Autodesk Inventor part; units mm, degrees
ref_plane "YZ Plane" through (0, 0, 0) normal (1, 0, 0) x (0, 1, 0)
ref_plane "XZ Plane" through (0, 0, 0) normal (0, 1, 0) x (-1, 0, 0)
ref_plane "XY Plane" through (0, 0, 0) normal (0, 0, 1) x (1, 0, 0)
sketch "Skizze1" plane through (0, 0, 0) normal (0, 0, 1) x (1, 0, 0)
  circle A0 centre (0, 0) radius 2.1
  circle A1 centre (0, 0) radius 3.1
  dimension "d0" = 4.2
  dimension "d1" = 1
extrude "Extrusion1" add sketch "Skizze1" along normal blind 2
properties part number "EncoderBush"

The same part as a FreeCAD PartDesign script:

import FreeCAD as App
import Part
import Sketcher
from FreeCAD import Vector
Q = App.Units.Quantity

doc = App.newDocument("Part")
body = doc.addObject("PartDesign::Body", "Body")

sketch1 = body.newObject("Sketcher::SketchObject", "Sketch")
sketch1.AttachmentSupport = (doc.getObject("XY_Plane"), [""])
sketch1.MapMode = "FlatFace"
sketch1.addGeometry([
    Part.Circle(Vector(0, 0, 0), Vector(0, 0, 1), 3.1),
    Part.Circle(Vector(0, 0, 0), Vector(0, 0, 1), 2.1),
], False)
sketch1.addConstraint([
    Sketcher.Constraint("Coincident", 0, 3, -1, 1),
    Sketcher.Constraint("Coincident", 1, 3, -1, 1),
    Sketcher.Constraint("Diameter", 1, Q("4.2 mm")),
    Sketcher.Constraint("Diameter", 0, Q("6.2 mm")),
])
pad1 = body.newObject("PartDesign::Pad", "Pad")
pad1.Profile = sketch1
pad1.Length = 2

doc.recompute()
